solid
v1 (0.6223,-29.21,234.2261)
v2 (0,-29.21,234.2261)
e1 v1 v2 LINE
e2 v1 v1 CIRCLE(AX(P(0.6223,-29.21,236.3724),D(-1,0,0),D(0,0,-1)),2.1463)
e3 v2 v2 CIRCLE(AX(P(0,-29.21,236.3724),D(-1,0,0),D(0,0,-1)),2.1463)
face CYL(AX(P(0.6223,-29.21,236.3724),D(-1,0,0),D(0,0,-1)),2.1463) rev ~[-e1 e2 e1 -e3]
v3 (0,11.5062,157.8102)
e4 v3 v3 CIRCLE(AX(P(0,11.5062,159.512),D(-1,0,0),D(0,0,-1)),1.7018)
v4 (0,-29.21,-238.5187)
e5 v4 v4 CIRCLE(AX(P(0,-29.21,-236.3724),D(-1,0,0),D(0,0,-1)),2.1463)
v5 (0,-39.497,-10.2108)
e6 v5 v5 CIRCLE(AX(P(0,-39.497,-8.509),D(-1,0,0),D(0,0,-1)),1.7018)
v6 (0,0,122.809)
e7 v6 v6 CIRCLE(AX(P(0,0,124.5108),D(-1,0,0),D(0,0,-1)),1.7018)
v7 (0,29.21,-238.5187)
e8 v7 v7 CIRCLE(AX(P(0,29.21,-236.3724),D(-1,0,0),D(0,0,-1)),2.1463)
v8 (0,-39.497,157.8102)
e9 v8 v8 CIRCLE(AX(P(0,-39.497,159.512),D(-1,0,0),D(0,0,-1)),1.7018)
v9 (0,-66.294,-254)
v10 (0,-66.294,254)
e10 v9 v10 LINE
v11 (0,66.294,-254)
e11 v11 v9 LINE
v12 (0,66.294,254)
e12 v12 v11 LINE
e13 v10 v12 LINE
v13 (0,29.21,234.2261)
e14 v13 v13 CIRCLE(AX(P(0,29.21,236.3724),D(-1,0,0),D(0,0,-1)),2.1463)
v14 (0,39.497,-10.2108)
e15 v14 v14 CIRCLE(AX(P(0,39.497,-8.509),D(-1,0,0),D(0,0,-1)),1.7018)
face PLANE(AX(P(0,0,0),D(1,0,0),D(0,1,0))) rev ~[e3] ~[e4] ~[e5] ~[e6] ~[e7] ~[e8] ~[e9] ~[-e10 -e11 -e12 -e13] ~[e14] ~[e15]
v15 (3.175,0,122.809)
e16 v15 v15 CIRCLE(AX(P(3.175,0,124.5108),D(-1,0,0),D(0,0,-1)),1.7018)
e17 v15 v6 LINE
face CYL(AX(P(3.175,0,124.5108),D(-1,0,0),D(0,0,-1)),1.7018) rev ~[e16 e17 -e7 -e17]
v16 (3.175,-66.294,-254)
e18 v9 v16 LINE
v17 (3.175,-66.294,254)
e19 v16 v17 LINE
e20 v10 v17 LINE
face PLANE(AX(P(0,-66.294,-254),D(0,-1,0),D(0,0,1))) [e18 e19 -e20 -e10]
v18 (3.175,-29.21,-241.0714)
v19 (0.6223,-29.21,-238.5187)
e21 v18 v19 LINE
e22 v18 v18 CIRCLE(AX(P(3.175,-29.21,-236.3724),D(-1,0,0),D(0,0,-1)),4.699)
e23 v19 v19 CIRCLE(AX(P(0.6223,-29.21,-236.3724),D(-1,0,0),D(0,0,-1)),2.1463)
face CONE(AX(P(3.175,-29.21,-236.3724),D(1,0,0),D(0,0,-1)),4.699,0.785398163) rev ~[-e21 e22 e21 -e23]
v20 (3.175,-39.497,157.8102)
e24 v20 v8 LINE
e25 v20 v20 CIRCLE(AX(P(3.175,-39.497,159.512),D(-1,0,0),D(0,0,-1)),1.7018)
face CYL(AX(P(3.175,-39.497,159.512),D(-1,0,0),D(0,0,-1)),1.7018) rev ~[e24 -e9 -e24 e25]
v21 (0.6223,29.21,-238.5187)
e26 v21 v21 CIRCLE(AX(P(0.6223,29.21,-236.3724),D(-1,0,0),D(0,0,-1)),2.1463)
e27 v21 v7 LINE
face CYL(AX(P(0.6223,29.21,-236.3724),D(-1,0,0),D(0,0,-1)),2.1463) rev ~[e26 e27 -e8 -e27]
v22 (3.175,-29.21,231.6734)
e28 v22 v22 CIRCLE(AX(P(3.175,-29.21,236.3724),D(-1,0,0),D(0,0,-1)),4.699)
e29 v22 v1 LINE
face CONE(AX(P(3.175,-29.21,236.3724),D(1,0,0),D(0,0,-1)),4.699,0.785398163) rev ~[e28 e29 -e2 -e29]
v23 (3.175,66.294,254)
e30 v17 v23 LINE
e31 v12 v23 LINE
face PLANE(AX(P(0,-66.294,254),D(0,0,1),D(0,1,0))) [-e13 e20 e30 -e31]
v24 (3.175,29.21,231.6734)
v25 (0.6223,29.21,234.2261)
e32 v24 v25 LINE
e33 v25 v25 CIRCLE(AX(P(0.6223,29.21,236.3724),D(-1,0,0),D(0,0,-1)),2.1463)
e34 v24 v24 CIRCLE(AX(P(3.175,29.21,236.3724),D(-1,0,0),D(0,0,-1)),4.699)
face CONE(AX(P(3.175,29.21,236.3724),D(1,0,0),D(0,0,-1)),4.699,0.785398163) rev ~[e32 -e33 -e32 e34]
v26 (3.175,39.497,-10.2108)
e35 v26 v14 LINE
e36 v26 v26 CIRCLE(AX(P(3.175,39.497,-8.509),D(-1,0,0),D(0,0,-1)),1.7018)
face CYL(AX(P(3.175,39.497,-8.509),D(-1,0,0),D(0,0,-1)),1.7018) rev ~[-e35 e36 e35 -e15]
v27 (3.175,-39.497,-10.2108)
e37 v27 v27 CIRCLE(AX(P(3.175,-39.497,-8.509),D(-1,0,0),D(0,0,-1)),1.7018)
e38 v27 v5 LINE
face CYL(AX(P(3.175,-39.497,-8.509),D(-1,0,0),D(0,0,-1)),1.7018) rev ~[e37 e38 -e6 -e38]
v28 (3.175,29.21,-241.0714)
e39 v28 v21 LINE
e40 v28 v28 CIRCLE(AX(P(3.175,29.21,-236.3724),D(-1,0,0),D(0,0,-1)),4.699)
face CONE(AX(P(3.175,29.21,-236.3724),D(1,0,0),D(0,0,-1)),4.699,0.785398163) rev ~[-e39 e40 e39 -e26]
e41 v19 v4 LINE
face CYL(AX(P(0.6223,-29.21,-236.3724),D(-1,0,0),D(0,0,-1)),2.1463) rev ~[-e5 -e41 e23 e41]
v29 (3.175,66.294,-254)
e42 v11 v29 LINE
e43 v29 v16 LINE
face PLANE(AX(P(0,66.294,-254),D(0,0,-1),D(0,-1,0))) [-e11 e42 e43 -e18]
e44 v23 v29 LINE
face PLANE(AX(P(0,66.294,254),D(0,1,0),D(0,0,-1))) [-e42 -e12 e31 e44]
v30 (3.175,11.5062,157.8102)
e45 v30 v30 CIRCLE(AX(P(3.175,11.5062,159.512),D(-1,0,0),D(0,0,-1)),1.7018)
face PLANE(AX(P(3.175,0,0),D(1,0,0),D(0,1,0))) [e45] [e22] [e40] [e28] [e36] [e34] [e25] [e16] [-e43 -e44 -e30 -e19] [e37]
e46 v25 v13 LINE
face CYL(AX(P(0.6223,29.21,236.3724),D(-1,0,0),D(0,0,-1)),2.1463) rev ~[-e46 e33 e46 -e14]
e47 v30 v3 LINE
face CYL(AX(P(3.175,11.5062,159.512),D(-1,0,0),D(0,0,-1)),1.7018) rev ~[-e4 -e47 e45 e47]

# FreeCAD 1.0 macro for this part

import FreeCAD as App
import Part
import Sketcher
from FreeCAD import Vector
Q = App.Units.Quantity


def add_polygon(sketch, points):
    """Adds a closed chain of lines whose ends are joined by coincident constraints."""
    first, n = sketch.GeometryCount, len(points)
    for a, b in zip(points, points[1:] + points[:1]):
        sketch.addGeometry(Part.LineSegment(App.Vector(*a, 0), App.Vector(*b, 0)), False)
    for i in range(n):
        sketch.addConstraint(Sketcher.Constraint("Coincident", first + i, 2, first + (i + 1) % n, 1))

doc = App.newDocument("Part")
params = doc.addObject("Spreadsheet::Sheet", "Params")
for row, (alias, value) in enumerate([
    ("sketch1_height", "20 in"),
    ("sketch1_width", "5.22 in"),
    ("pad1_length", "0.125 in"),
    ("sketch2_diameter", "0.134 in"),
    ("hole_diameter", "0.134 in"),
    ("sketch3_diameter", "0.169 in"),
    ("hole2_diameter", "0.169 in"),
    ("hole2_csink_diameter", "0.37 in"),
], start=1):
    params.set(f"A{row}", alias)
    params.set(f"B{row}", "=" + value)
    params.setAlias(f"B{row}", alias)

body = doc.addObject("PartDesign::Body", "Body")

sketch1 = body.newObject("Sketcher::SketchObject", "Sketch")
sketch1.AttachmentSupport = (doc.getObject("YZ_Plane"), [""])
sketch1.MapMode = "FlatFace"
add_polygon(sketch1, [(66, 254), (-66, 254), (-66, -254), (66, -254)])
sketch1.addConstraint([
    Sketcher.Constraint("Horizontal", 0),
    Sketcher.Constraint("Vertical", 1),
    Sketcher.Constraint("Horizontal", 2),
    Sketcher.Constraint("Vertical", 3),
    Sketcher.Constraint("Symmetric", 0, 2, 2, 2, -1, 1),
    Sketcher.Constraint("DistanceY", 1, 2, 1, 1, Q("20 in")),
    Sketcher.Constraint("DistanceX", 0, 2, 0, 1, Q("5.22 in")),
])
sketch1.setExpression("Constraints[9]", "Params.sketch1_height")
sketch1.setExpression("Constraints[10]", "Params.sketch1_width")
pad1 = body.newObject("PartDesign::Pad", "Pad")
pad1.Profile = sketch1
pad1.setExpression("Length", "Params.pad1_length")

sketch2 = body.newObject("Sketcher::SketchObject", "Sketch001")
sketch2.AttachmentSupport = (doc.getObject("YZ_Plane"), [""])
sketch2.MapMode = "FlatFace"
sketch2.AttachmentOffset = App.Placement(Vector(0, 0, 0.125 * 25.4), App.Rotation())
sketch2.addGeometry([
    Part.Circle(Vector(11.5, 159.5, 0), Vector(0, 0, 1), 1.7),
    Part.Circle(Vector(-39.5, 159.5, 0), Vector(0, 0, 1), 1.7),
    Part.Circle(Vector(0, 124.5, 0), Vector(0, 0, 1), 1.7),
    Part.Circle(Vector(39.5, -8.5, 0), Vector(0, 0, 1), 1.7),
    Part.Circle(Vector(-39.5, -8.5, 0), Vector(0, 0, 1), 1.7),
], False)
sketch2.addConstraint([
    Sketcher.Constraint("Equal", 0, 1),
    Sketcher.Constraint("Equal", 1, 2),
    Sketcher.Constraint("Equal", 2, 3),
    Sketcher.Constraint("Equal", 3, 4),
    Sketcher.Constraint("Symmetric", 3, 3, 4, 3, -2),
    Sketcher.Constraint("PointOnObject", 2, 3, -2),
    Sketcher.Constraint("Horizontal", 0, 3, 1, 3),
    Sketcher.Constraint("Vertical", 1, 3, 4, 3),
    Sketcher.Constraint("Diameter", 0, Q("0.134 in")),
    Sketcher.Constraint("DistanceY", -1, 1, 0, 3, Q("6.28 in")),
    Sketcher.Constraint("DistanceX", 1, 3, 3, 3, Q("3.11 in")),
    Sketcher.Constraint("DistanceX", -1, 1, 0, 3, Q("0.453 in")),
    Sketcher.Constraint("DistanceY", -1, 1, 2, 3, Q("4.902 in")),
    Sketcher.Constraint("DistanceY", 3, 3, -1, 1, Q("0.335 in")),
])
sketch2.setExpression("Constraints[8]", "Params.sketch2_diameter")
doc.recompute()
hole = body.newObject("PartDesign::Hole", "Hole")
hole.Profile = sketch2
hole.ThreadType = "None"
hole.setExpression("Diameter", "Params.hole_diameter")
hole.DepthType = "ThroughAll"

sketch3 = body.newObject("Sketcher::SketchObject", "Sketch002")
sketch3.AttachmentSupport = (doc.getObject("YZ_Plane"), [""])
sketch3.MapMode = "FlatFace"
sketch3.AttachmentOffset = App.Placement(Vector(0, 0, 0.125 * 25.4), App.Rotation())
sketch3.addGeometry([
    Part.Circle(Vector(29.2, -236.4, 0), Vector(0, 0, 1), 2.1),
    Part.Circle(Vector(-29.2, -236.4, 0), Vector(0, 0, 1), 2.1),
    Part.Circle(Vector(-29.2, 236.4, 0), Vector(0, 0, 1), 2.1),
    Part.Circle(Vector(29.2, 236.4, 0), Vector(0, 0, 1), 2.1),
], False)
sketch3.addConstraint([
    Sketcher.Constraint("Equal", 0, 1),
    Sketcher.Constraint("Equal", 1, 2),
    Sketcher.Constraint("Equal", 2, 3),
    Sketcher.Constraint("Symmetric", 0, 3, 2, 3, -1, 1),
    Sketcher.Constraint("Symmetric", 1, 3, 3, 3, -1, 1),
    Sketcher.Constraint("Symmetric", 0, 3, 1, 3, -2),
    Sketcher.Constraint("Diameter", 0, Q("0.169 in")),
    Sketcher.Constraint("DistanceX", 1, 3, 0, 3, Q("2.3 in")),
    Sketcher.Constraint("DistanceY", 0, 3, -1, 1, Q("9.306 in")),
])
sketch3.setExpression("Constraints[6]", "Params.sketch3_diameter")
doc.recompute()
hole2 = body.newObject("PartDesign::Hole", "Hole001")
hole2.Profile = sketch3
hole2.ThreadType = "None"
hole2.setExpression("Diameter", "Params.hole2_diameter")
hole2.DepthType = "ThroughAll"
hole2.HoleCutType = "Countersink"
hole2.setExpression("HoleCutDiameter", "Params.hole2_csink_diameter")
hole2.HoleCutCountersinkAngle = 90

doc.recompute()
